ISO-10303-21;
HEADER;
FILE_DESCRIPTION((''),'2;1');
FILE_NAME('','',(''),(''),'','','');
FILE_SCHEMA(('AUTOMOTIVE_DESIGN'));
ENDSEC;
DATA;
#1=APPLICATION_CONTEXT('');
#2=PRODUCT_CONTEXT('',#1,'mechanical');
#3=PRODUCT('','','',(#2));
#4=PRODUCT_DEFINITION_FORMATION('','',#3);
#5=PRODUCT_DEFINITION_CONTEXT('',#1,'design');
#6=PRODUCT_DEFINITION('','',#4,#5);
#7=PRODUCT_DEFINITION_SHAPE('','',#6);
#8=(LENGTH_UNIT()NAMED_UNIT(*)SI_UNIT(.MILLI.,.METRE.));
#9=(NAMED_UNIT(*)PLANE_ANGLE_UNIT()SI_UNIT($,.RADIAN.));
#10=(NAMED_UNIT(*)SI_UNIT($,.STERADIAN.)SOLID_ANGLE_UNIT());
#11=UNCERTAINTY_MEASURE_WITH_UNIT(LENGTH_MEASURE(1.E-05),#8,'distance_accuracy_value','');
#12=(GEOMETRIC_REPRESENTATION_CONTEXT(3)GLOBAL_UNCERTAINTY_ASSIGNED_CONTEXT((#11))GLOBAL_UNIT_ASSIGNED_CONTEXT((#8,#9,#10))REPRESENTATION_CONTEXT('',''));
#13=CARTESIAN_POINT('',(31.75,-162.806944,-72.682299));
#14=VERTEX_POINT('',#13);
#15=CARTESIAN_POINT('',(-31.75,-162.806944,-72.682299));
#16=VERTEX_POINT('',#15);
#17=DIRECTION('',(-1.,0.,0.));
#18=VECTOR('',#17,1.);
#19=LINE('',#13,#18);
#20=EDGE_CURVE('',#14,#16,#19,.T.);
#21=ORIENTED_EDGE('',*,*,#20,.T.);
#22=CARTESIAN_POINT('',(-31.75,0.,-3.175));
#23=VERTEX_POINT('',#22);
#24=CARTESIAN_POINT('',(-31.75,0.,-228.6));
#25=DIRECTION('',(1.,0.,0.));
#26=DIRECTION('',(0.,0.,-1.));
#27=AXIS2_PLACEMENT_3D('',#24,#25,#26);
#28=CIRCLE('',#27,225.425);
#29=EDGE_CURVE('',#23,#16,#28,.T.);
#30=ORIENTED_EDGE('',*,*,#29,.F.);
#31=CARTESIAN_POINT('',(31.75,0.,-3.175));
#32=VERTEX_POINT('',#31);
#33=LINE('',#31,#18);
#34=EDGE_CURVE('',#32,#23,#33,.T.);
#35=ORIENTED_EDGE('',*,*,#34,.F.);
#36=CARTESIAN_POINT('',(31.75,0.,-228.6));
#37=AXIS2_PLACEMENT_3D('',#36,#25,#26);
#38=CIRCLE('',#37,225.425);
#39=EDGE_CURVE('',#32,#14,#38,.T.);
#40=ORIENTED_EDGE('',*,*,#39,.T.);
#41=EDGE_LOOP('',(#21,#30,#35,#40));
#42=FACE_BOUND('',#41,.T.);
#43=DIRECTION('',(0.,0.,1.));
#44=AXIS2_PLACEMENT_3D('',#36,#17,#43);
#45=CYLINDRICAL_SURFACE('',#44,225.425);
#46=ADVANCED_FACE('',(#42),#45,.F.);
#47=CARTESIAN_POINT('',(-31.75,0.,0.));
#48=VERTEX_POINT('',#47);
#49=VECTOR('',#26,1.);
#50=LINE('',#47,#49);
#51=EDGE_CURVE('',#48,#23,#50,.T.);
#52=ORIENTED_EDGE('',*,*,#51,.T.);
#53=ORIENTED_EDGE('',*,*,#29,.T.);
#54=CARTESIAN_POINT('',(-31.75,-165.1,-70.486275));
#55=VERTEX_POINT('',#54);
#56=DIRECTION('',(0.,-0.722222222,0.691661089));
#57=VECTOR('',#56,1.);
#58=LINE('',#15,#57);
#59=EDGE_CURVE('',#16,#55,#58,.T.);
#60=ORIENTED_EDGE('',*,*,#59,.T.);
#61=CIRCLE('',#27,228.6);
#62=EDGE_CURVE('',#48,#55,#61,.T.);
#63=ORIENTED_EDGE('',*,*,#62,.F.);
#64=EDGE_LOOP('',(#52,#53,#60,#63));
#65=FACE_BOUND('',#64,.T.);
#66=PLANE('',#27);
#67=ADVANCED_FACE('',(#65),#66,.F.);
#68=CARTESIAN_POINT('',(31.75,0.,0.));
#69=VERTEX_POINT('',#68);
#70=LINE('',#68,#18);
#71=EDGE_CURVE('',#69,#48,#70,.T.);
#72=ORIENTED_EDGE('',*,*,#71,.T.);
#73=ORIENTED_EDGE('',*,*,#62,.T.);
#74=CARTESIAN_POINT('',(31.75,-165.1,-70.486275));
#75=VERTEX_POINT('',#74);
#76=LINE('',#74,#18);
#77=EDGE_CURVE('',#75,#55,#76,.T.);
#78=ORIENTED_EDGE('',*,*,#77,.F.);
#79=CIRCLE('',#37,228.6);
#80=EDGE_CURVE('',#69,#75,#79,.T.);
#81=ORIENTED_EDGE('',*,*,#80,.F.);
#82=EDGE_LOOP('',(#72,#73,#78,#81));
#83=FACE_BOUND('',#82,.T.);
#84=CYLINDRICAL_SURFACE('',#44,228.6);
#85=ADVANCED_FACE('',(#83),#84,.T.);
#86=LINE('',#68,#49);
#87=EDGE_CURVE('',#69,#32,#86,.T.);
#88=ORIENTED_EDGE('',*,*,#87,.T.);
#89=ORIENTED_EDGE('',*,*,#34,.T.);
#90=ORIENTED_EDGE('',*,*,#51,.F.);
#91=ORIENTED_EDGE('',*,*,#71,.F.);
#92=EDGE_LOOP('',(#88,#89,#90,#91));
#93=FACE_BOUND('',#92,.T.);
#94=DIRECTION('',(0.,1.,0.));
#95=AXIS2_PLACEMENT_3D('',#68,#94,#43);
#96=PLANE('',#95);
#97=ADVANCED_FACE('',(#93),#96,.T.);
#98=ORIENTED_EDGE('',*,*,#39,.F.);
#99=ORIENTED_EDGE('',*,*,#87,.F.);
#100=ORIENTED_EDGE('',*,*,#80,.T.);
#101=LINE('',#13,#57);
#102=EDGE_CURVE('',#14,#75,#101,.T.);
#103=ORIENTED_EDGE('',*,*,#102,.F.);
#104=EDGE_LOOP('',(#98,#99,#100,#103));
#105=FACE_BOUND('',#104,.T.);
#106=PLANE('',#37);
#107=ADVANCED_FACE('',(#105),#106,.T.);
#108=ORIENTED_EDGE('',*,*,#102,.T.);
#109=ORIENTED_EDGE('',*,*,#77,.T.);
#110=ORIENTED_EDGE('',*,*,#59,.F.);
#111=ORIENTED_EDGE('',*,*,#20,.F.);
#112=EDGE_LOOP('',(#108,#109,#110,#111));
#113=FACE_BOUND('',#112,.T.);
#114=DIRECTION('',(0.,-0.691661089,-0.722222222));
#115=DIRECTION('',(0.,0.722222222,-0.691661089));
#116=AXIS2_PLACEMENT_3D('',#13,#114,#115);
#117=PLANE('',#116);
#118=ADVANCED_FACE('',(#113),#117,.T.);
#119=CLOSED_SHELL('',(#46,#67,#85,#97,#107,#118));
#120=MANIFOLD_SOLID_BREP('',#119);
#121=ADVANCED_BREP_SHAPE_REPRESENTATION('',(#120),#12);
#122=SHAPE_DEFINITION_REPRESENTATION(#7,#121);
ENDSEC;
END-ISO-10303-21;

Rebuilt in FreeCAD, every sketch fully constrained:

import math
import FreeCAD as App
import Part
import Sketcher
from FreeCAD import Vector
Q = App.Units.Quantity

doc = App.newDocument("Part")
body = doc.addObject("PartDesign::Body", "Body")

# Sketch on YZ plane
sketch1 = doc.addObject("Sketcher::SketchObject", "Sketch")
body.addObject(sketch1)
sketch1.AttachmentSupport = (doc.YZ_Plane, [""])
sketch1.MapMode = "FlatFace"
sketch1.addGeometry([
    Part.ArcOfCircle(Part.Circle(Vector(0, -228.6, 0), Vector(0, 0, 1), 228.6), math.radians(90), math.radians(136.238257)),
    Part.LineSegment(Vector(-165.1, -70.486275, 0), Vector(-162.806944, -72.682299, 0)),
    Part.ArcOfCircle(Part.Circle(Vector(0, -228.6, 0), Vector(0, 0, 1), 225.425), math.radians(90), math.radians(136.238257)),
    Part.LineSegment(Vector(0, -3.175, 0), Vector(0, 0, 0)),
], False)
sketch1.addConstraint([
    Sketcher.Constraint("Coincident", 0, 2, 1, 1),
    Sketcher.Constraint("Coincident", 1, 2, 2, 2),
    Sketcher.Constraint("Coincident", 2, 1, 3, 1),
    Sketcher.Constraint("Coincident", 3, 2, 0, 1),
    Sketcher.Constraint("Vertical", 3),
    Sketcher.Constraint("Coincident", 3, 2, -1, 1),
    Sketcher.Constraint("Coincident", 2, 3, 0, 3),
    Sketcher.Constraint("PointOnObject", 0, 3, -2),
    Sketcher.Constraint("Radius", 0, Q("9 in")),
    Sketcher.Constraint("Radius", 2, Q("8.875 in")),
    Sketcher.Constraint("DistanceX", 0, 2, -1, 1, Q("6.5 in")),
    Sketcher.Constraint("DistanceY", 1, 2, -1, 1, 72.682299),
])
pad1 = doc.addObject("PartDesign::Pad", "Pad")
body.addObject(pad1)
pad1.Profile = sketch1
pad1.Length = Q("2.5 in")
pad1.Midplane = True

doc.recompute()
